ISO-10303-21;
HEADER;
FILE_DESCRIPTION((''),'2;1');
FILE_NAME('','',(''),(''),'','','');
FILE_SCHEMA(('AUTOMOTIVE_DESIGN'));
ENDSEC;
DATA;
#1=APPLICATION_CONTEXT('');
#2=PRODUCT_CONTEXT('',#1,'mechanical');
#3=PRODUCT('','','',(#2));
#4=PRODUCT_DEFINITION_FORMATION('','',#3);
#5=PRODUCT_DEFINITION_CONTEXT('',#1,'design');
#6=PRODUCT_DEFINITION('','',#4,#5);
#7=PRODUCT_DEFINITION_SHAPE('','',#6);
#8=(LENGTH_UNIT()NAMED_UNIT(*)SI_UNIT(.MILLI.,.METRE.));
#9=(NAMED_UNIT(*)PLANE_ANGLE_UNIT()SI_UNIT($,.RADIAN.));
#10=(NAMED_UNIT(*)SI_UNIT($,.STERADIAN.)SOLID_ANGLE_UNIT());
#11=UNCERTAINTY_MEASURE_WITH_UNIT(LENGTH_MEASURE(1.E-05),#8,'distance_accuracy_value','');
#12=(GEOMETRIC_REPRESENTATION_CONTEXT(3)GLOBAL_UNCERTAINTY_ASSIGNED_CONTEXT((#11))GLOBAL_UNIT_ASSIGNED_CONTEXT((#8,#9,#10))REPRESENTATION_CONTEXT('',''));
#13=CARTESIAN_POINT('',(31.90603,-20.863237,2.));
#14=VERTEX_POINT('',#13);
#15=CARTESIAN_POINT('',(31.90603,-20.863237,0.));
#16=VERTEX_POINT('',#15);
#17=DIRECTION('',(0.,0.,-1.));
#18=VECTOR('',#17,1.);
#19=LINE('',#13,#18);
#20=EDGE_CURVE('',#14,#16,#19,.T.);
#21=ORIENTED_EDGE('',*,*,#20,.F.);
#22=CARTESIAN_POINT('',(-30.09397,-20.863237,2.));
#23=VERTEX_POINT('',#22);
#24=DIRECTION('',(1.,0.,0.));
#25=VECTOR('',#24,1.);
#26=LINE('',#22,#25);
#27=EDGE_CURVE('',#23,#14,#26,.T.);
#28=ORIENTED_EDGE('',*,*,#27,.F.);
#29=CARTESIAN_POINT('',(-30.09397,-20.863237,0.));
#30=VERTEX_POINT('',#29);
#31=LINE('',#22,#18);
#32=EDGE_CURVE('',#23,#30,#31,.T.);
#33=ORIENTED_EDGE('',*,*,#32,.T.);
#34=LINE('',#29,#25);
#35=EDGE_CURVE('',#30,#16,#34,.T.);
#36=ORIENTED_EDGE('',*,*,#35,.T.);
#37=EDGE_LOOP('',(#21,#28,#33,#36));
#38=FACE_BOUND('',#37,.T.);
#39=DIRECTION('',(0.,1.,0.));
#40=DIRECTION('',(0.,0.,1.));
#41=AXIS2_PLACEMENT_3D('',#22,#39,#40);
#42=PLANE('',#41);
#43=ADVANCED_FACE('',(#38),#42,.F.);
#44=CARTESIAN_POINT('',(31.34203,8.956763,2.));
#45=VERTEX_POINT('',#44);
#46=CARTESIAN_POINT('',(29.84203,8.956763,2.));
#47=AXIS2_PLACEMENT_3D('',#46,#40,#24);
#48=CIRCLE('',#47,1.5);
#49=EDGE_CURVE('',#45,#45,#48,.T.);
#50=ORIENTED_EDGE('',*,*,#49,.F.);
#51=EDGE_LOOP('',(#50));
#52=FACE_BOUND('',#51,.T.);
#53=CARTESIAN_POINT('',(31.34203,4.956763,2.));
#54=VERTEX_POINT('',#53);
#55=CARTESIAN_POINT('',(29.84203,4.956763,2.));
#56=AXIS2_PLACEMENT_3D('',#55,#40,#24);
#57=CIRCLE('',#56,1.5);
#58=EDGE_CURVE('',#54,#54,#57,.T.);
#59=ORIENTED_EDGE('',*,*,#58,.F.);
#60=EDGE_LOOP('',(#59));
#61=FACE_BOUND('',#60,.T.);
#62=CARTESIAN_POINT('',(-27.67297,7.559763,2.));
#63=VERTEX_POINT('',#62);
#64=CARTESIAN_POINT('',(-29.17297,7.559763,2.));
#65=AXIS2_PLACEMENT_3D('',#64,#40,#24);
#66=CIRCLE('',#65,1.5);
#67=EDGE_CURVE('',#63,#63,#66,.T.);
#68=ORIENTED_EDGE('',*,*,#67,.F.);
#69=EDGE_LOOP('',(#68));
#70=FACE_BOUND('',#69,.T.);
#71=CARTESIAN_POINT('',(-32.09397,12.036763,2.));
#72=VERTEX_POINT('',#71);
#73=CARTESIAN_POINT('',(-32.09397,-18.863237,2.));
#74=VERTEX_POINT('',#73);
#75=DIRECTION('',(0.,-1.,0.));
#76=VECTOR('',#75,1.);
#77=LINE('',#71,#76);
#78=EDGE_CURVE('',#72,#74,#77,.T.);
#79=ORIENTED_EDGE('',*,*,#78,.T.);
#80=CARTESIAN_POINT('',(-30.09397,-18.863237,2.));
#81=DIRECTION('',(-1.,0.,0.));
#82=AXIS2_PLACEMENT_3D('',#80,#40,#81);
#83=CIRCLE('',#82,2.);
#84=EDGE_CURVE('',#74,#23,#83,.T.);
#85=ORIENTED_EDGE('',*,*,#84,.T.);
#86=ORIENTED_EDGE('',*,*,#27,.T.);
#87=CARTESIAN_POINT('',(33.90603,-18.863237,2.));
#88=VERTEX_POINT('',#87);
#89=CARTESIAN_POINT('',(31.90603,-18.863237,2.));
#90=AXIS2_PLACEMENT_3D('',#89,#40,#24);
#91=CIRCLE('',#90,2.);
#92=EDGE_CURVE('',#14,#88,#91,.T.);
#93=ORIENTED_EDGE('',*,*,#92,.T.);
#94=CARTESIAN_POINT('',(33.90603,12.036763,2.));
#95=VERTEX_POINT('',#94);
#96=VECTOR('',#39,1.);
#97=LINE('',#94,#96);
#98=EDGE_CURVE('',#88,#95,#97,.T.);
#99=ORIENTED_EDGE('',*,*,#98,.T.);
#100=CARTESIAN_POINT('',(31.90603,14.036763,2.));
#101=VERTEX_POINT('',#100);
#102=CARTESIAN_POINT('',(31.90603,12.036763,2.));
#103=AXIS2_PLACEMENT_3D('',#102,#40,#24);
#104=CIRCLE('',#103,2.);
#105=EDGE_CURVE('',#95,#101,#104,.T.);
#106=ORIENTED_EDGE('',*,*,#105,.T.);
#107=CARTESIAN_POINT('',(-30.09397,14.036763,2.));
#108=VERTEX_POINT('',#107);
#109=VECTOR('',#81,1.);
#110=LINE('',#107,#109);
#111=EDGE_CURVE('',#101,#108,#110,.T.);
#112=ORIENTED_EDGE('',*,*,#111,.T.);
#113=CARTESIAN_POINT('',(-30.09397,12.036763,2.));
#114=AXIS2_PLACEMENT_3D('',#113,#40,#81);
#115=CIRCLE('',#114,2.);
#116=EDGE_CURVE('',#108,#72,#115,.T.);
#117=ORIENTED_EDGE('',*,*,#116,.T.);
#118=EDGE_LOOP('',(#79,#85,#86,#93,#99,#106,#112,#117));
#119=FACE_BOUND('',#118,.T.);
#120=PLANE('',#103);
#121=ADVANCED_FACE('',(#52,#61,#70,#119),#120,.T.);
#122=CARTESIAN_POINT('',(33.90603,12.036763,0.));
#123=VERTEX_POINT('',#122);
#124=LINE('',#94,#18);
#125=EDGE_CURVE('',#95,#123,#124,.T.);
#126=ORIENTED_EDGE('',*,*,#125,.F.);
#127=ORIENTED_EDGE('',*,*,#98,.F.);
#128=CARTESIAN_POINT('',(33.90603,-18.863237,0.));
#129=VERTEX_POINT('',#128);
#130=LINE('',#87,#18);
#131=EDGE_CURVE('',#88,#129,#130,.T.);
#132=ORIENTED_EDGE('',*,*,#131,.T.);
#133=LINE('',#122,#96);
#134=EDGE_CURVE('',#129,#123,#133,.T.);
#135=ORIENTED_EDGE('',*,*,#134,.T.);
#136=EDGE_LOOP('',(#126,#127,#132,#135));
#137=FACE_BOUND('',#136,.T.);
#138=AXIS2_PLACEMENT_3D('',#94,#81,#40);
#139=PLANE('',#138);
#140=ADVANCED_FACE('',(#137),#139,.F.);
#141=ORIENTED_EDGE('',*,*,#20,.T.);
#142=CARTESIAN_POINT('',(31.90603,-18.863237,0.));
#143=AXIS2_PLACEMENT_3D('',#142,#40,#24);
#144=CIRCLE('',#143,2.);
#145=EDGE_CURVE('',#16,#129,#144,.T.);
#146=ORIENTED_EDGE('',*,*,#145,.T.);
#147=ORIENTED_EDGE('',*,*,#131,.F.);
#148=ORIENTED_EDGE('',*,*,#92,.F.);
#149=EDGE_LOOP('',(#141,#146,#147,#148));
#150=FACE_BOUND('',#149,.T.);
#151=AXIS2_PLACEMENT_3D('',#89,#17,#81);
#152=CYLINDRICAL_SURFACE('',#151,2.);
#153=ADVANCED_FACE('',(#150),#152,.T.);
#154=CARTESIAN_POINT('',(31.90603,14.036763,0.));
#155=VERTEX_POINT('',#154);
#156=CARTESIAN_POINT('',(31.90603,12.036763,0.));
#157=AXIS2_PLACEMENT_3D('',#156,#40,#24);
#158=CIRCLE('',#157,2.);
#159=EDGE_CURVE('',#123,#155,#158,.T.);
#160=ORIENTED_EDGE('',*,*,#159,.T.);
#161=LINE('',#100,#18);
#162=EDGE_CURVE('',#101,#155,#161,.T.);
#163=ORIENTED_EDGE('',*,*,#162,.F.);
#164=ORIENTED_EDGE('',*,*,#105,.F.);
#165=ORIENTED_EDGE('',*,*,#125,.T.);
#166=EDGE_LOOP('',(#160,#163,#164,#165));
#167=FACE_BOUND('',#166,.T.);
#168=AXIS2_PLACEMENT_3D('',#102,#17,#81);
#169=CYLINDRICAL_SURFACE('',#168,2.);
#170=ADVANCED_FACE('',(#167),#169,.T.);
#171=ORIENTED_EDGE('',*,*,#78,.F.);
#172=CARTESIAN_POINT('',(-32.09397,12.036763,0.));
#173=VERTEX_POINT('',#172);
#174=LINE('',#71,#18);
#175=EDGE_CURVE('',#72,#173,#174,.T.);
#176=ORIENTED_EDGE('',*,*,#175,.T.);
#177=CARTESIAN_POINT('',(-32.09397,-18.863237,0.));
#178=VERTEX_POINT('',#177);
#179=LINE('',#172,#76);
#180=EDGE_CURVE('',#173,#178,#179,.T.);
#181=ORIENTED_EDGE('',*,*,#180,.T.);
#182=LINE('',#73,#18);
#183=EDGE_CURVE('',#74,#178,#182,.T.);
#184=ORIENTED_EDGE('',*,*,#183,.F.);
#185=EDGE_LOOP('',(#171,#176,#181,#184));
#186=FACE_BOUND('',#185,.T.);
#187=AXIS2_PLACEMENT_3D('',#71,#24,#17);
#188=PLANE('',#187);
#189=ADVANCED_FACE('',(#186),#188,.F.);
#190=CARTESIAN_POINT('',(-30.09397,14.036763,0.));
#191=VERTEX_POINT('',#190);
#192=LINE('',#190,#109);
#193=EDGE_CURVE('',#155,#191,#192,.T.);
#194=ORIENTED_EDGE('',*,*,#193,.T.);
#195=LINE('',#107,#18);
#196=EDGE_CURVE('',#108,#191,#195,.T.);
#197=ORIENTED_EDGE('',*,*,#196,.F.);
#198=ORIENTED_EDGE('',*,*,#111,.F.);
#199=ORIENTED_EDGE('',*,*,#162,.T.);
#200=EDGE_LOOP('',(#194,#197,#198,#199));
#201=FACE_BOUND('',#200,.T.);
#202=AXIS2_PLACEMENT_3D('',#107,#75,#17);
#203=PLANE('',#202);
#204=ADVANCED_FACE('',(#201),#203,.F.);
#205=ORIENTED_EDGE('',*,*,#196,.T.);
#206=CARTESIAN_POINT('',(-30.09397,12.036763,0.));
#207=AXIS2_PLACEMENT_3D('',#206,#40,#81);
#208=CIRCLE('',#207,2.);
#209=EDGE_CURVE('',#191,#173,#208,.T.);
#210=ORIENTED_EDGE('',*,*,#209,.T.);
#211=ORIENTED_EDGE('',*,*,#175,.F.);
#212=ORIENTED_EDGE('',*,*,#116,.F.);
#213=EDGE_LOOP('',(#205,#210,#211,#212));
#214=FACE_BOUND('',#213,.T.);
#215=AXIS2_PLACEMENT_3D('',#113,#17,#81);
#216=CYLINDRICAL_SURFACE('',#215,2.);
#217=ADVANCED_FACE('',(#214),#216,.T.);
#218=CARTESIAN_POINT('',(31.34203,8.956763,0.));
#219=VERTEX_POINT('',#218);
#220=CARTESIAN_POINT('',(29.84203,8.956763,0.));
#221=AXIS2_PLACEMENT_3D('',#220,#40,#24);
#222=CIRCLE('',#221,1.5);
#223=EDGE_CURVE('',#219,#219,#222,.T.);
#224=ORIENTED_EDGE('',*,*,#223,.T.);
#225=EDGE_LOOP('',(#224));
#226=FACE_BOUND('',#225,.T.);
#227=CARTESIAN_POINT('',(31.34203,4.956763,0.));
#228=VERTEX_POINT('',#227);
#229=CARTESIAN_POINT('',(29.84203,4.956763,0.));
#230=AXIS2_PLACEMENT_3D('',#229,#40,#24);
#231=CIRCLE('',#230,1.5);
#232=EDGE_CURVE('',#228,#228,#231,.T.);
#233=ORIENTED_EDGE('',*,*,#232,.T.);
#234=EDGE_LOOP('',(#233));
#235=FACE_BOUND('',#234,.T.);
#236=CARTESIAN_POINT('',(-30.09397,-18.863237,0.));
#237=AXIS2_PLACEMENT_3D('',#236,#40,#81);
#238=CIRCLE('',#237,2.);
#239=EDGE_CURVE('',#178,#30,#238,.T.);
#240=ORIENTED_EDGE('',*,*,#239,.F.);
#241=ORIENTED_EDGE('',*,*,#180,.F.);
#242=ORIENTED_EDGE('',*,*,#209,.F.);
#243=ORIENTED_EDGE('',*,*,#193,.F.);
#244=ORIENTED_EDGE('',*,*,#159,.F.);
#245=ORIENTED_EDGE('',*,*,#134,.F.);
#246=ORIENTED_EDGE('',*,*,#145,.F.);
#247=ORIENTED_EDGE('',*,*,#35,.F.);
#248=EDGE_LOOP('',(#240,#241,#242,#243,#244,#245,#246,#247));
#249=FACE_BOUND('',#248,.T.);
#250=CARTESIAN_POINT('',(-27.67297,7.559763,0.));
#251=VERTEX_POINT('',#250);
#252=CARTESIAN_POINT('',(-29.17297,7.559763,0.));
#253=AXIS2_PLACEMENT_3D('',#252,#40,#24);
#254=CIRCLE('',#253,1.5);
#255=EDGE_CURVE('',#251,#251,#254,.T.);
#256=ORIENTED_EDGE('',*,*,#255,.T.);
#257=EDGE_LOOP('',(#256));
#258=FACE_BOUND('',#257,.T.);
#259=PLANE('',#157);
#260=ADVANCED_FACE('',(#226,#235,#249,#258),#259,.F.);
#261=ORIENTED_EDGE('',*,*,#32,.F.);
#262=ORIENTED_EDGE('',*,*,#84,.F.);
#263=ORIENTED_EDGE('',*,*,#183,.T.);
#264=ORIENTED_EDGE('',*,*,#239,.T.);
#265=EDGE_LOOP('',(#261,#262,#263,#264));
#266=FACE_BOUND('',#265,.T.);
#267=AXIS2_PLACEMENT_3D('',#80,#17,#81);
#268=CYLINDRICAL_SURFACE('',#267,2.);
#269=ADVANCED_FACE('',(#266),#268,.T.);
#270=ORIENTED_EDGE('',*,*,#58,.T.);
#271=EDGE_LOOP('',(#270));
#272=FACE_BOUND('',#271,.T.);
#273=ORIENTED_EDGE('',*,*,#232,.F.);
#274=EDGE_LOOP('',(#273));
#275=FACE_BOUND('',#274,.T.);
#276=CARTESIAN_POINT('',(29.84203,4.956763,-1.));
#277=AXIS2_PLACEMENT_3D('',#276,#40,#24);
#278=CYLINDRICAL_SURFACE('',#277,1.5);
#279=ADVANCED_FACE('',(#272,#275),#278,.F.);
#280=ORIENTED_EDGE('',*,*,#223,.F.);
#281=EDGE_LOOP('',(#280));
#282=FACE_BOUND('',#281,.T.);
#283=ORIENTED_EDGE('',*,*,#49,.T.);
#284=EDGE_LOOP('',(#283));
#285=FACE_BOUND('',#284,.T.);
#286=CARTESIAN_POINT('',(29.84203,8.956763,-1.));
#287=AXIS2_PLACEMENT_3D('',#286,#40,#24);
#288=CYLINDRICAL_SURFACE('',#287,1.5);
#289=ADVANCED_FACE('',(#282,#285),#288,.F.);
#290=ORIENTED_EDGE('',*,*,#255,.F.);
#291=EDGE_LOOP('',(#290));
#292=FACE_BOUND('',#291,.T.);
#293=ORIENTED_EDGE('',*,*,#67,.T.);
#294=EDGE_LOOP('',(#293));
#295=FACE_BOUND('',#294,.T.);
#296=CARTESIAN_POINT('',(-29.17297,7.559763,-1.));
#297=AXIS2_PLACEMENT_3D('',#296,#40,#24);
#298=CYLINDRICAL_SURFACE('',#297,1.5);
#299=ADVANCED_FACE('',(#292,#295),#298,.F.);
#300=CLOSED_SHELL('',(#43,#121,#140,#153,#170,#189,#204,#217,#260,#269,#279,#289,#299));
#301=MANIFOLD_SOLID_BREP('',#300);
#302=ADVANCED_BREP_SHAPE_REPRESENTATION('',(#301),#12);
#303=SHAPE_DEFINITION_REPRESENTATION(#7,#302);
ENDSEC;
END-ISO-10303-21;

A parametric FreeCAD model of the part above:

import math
import FreeCAD as App
import Part
import Sketcher
from FreeCAD import Vector

doc = App.newDocument("Part")
body = doc.addObject("PartDesign::Body", "Body")

sketch1 = doc.addObject("Sketcher::SketchObject", "Sketch")
body.addObject(sketch1)
sketch1.AttachmentSupport = (doc.XY_Plane, [""])
sketch1.MapMode = "FlatFace"
sketch1.addGeometry(Part.LineSegment(Vector(31.90603, 14.036763, 0), Vector(-30.09397, 14.036763, 0)), False)
sketch1.addGeometry(Part.ArcOfCircle(Part.Circle(Vector(-30.09397, 12.036763, 0), Vector(0, 0, 1), 2), math.radians(90), math.radians(180)), False)
sketch1.addGeometry(Part.LineSegment(Vector(-32.09397, 12.036763, 0), Vector(-32.09397, -18.863237, 0)), False)
sketch1.addGeometry(Part.ArcOfCircle(Part.Circle(Vector(-30.09397, -18.863237, 0), Vector(0, 0, 1), 2), math.radians(180), math.radians(270)), False)
sketch1.addGeometry(Part.LineSegment(Vector(-30.09397, -20.863237, 0), Vector(31.90603, -20.863237, 0)), False)
sketch1.addGeometry(Part.ArcOfCircle(Part.Circle(Vector(31.90603, -18.863237, 0), Vector(0, 0, 1), 2), math.radians(-90), math.radians(0)), False)
sketch1.addGeometry(Part.LineSegment(Vector(33.90603, -18.863237, 0), Vector(33.90603, 12.036763, 0)), False)
sketch1.addGeometry(Part.ArcOfCircle(Part.Circle(Vector(31.90603, 12.036763, 0), Vector(0, 0, 1), 2), math.radians(0), math.radians(90)), False)
sketch1.addConstraint(Sketcher.Constraint("Tangent", 0, 2, 1, 1))
sketch1.addConstraint(Sketcher.Constraint("Tangent", 1, 2, 2, 1))
sketch1.addConstraint(Sketcher.Constraint("Tangent", 2, 2, 3, 1))
sketch1.addConstraint(Sketcher.Constraint("Tangent", 3, 2, 4, 1))
sketch1.addConstraint(Sketcher.Constraint("Tangent", 4, 2, 5, 1))
sketch1.addConstraint(Sketcher.Constraint("Tangent", 5, 2, 6, 1))
sketch1.addConstraint(Sketcher.Constraint("Tangent", 6, 2, 7, 1))
sketch1.addConstraint(Sketcher.Constraint("Tangent", 7, 2, 0, 1))
sketch1.addConstraint(Sketcher.Constraint("Horizontal", 0))
sketch1.addConstraint(Sketcher.Constraint("Vertical", 2))
sketch1.addConstraint(Sketcher.Constraint("Horizontal", 4))
sketch1.addConstraint(Sketcher.Constraint("Vertical", 6))
sketch1.addConstraint(Sketcher.Constraint("Equal", 1, 3))
sketch1.addConstraint(Sketcher.Constraint("Equal", 3, 5))
sketch1.addConstraint(Sketcher.Constraint("Equal", 5, 7))
sketch1.addConstraint(Sketcher.Constraint("Radius", 1, 2.0))
sketch1.addConstraint(Sketcher.Constraint("DistanceX", 0, 2, 0, 1, 62.0))
sketch1.addConstraint(Sketcher.Constraint("DistanceY", 2, 2, 2, 1, 30.9))
sketch1.addConstraint(Sketcher.Constraint("DistanceX", 1, 3, -1, 1, 30.09397))
sketch1.addConstraint(Sketcher.Constraint("DistanceY", -1, 1, 1, 3, 12.036763))
pad1 = doc.addObject("PartDesign::Pad", "Pad")
body.addObject(pad1)
pad1.Profile = sketch1
pad1.Length = 2

sketch2 = doc.addObject("Sketcher::SketchObject", "Sketch001")
body.addObject(sketch2)
sketch2.AttachmentSupport = (doc.XY_Plane, [""])
sketch2.MapMode = "FlatFace"
sketch2.AttachmentOffset = App.Placement(Vector(0, 0, 2), App.Rotation())
sketch2.addGeometry(Part.Circle(Vector(-29.17297, 7.559763, 0), Vector(0, 0, 1), 1.5), False)
sketch2.addGeometry(Part.Circle(Vector(29.84203, 8.956763, 0), Vector(0, 0, 1), 1.5), False)
sketch2.addGeometry(Part.Circle(Vector(29.84203, 4.956763, 0), Vector(0, 0, 1), 1.5), False)
sketch2.addConstraint(Sketcher.Constraint("Equal", 0, 1))
sketch2.addConstraint(Sketcher.Constraint("Equal", 1, 2))
sketch2.addConstraint(Sketcher.Constraint("Vertical", 1, 3, 2, 3))
sketch2.addConstraint(Sketcher.Constraint("Diameter", 0, 3.0))
sketch2.addConstraint(Sketcher.Constraint("DistanceY", 2, 3, 1, 3, 4.0))
sketch2.addConstraint(Sketcher.Constraint("DistanceX", 0, 3, 1, 3, 59.015))
sketch2.addConstraint(Sketcher.Constraint("DistanceY", 0, 3, 1, 3, 1.397))
sketch2.addConstraint(Sketcher.Constraint("DistanceX", 0, 3, -1, 1, 29.17297))
sketch2.addConstraint(Sketcher.Constraint("DistanceY", -1, 1, 0, 3, 7.559763))
pocket1 = doc.addObject("PartDesign::Pocket", "Pocket")
body.addObject(pocket1)
pocket1.Profile = sketch2
pocket1.Length = 3

doc.recompute()
